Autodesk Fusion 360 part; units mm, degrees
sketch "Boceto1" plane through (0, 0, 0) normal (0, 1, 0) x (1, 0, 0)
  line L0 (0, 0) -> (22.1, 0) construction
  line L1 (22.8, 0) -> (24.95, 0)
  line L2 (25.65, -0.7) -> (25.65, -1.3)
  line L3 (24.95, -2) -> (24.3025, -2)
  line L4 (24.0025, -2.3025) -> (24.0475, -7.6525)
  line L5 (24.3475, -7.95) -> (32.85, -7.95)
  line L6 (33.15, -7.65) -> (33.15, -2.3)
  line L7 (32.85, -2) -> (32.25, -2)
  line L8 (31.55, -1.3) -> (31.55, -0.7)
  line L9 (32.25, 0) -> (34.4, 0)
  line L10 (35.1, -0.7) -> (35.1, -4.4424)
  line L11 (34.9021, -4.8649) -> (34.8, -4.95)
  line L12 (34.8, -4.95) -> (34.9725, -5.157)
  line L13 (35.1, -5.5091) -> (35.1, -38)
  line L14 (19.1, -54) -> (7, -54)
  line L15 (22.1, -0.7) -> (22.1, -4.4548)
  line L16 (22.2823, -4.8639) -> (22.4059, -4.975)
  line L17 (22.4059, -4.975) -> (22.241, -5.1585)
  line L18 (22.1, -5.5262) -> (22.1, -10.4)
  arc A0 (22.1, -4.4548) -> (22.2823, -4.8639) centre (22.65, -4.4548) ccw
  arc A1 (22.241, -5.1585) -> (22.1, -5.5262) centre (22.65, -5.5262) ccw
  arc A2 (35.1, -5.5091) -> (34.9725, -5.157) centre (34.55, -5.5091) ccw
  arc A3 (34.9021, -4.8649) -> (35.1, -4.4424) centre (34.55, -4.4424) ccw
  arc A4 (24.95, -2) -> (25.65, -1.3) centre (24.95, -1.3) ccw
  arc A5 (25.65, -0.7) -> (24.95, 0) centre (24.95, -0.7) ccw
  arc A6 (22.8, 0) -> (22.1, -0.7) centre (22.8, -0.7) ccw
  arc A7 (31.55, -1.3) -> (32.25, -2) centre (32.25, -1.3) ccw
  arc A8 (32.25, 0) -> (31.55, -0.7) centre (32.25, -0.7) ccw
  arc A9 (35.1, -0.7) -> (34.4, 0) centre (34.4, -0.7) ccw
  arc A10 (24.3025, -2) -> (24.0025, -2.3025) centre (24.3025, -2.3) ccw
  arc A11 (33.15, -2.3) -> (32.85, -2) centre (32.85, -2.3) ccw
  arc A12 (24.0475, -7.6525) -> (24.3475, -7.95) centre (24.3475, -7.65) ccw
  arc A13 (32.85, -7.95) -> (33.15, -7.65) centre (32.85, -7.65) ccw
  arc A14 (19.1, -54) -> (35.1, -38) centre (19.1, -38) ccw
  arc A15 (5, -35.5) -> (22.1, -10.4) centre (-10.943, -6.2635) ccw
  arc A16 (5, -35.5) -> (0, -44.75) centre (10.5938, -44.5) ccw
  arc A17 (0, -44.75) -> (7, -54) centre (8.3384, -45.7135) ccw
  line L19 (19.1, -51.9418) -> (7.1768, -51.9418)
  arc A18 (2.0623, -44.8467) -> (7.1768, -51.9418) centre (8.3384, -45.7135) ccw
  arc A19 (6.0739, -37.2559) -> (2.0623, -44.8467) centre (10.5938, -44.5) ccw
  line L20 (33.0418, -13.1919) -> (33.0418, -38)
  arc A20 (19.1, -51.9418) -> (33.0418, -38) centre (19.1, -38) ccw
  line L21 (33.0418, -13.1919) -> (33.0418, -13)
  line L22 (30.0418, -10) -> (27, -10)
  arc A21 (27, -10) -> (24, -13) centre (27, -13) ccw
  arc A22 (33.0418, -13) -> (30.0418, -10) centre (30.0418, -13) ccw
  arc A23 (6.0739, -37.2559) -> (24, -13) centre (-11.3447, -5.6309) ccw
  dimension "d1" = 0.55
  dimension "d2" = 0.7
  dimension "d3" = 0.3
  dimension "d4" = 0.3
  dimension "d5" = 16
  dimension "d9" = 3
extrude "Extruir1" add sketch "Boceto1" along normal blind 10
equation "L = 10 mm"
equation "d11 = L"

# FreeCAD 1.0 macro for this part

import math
import FreeCAD as App
import Part
import Sketcher
Q = App.Units.Quantity

doc = App.newDocument("Part")
params = doc.addObject("Spreadsheet::Sheet", "Params")
for row, (alias, value) in enumerate([
    ("sketch1_radius", "16 mm"),
    ("sketch1_radius2", "3 mm"),
    ("sketch1_radius3", "0.7 mm"),
    ("sketch1_radius4", "0.3 mm"),
    ("sketch1_radius5", "0.55 mm"),
    ("pad1_length", "10 mm"),
], start=1):
    params.set(f"A{row}", alias)
    params.set(f"B{row}", "=" + value)
    params.setAlias(f"B{row}", alias)

body = doc.addObject("PartDesign::Body", "Body")

sketch1 = doc.addObject("Sketcher::SketchObject", "Sketch")
body.addObject(sketch1)
sketch1.AttachmentSupport = (doc.XZ_Plane, [""])
sketch1.MapMode = "FlatFace"
sketch1.addGeometry(Part.LineSegment(App.Vector(24.95, 0, 0), App.Vector(22.8, 0, 0)), False)
sketch1.addGeometry(Part.ArcOfCircle(Part.Circle(App.Vector(22.8, 0.7, 0), App.Vector(0, 0, 1), 0.7), math.radians(180), math.radians(270)), False)
sketch1.addGeometry(Part.LineSegment(App.Vector(22.1, 0.7, 0), App.Vector(22.1, 4.4548, 0)), False)
sketch1.addGeometry(Part.ArcOfCircle(Part.Circle(App.Vector(22.65, 4.4548, 0), App.Vector(0, 0, 1), 0.55), math.radians(131.949275), math.radians(180)), False)
sketch1.addGeometry(Part.LineSegment(App.Vector(22.2823, 4.8639, 0), App.Vector(22.4059, 4.975, 0)), False)
sketch1.addGeometry(Part.LineSegment(App.Vector(22.4059, 4.975, 0), App.Vector(22.241, 5.1585, 0)), False)
sketch1.addGeometry(Part.ArcOfCircle(Part.Circle(App.Vector(22.65, 5.5262, 0), App.Vector(0, 0, 1), 0.549986), math.radians(180), math.radians(221.956239)), False)
sketch1.addGeometry(Part.LineSegment(App.Vector(22.1, 5.5262, 0), App.Vector(22.1, 10.4, 0)), False)
sketch1.addGeometry(Part.ArcOfCircle(Part.Circle(App.Vector(-10.943, 6.2635, 0), App.Vector(0, 0, 1), 33.300934), math.radians(7.135473), math.radians(61.395857)), False)
sketch1.addGeometry(Part.ArcOfCircle(Part.Circle(App.Vector(10.5938, 44.5, 0), App.Vector(0, 0, 1), 10.596726), math.radians(178.648145), math.radians(238.137671)), False)
sketch1.addGeometry(Part.ArcOfCircle(Part.Circle(App.Vector(8.3384, 45.7135, 0), App.Vector(0, 0, 1), 8.393882), math.radians(99.174933), math.radians(186.591281)), False)
sketch1.addGeometry(Part.LineSegment(App.Vector(7, 54, 0), App.Vector(19.1, 54, 0)), False)
sketch1.addGeometry(Part.ArcOfCircle(Part.Circle(App.Vector(19.1, 38, 0), App.Vector(0, 0, 1), 16), math.radians(0), math.radians(90)), False)
sketch1.addGeometry(Part.LineSegment(App.Vector(35.1, 38, 0), App.Vector(35.1, 5.5091, 0)), False)
sketch1.addGeometry(Part.ArcOfCircle(Part.Circle(App.Vector(34.55, 5.5091, 0), App.Vector(0, 0, 1), 0.55), math.radians(-39.806905), math.radians(0)), False)
sketch1.addGeometry(Part.LineSegment(App.Vector(34.9725, 5.157, 0), App.Vector(34.8, 4.95, 0)), False)
sketch1.addGeometry(Part.LineSegment(App.Vector(34.8, 4.95, 0), App.Vector(34.9021, 4.8649, 0)), False)
sketch1.addGeometry(Part.ArcOfCircle(Part.Circle(App.Vector(34.55, 4.4424, 0), App.Vector(0, 0, 1), 0.549982), math.radians(0), math.radians(50.193095)), False)
sketch1.addGeometry(Part.LineSegment(App.Vector(35.1, 4.4424, 0), App.Vector(35.1, 0.7, 0)), False)
sketch1.addGeometry(Part.ArcOfCircle(Part.Circle(App.Vector(34.4, 0.7, 0), App.Vector(0, 0, 1), 0.7), math.radians(-90), math.radians(0)), False)
sketch1.addGeometry(Part.LineSegment(App.Vector(34.4, 0, 0), App.Vector(32.25, 0, 0)), False)
sketch1.addGeometry(Part.ArcOfCircle(Part.Circle(App.Vector(32.25, 0.7, 0), App.Vector(0, 0, 1), 0.7), math.radians(180), math.radians(270)), False)
sketch1.addGeometry(Part.LineSegment(App.Vector(31.55, 0.7, 0), App.Vector(31.55, 1.3, 0)), False)
sketch1.addGeometry(Part.ArcOfCircle(Part.Circle(App.Vector(32.25, 1.3, 0), App.Vector(0, 0, 1), 0.7), math.radians(90), math.radians(180)), False)
sketch1.addGeometry(Part.LineSegment(App.Vector(32.25, 2, 0), App.Vector(32.85, 2, 0)), False)
sketch1.addGeometry(Part.ArcOfCircle(Part.Circle(App.Vector(32.85, 2.3, 0), App.Vector(0, 0, 1), 0.3), math.radians(-90), math.radians(0)), False)
sketch1.addGeometry(Part.LineSegment(App.Vector(33.15, 2.3, 0), App.Vector(33.15, 7.65, 0)), False)
sketch1.addGeometry(Part.ArcOfCircle(Part.Circle(App.Vector(32.85, 7.65, 0), App.Vector(0, 0, 1), 0.3), math.radians(0), math.radians(90)), False)
sketch1.addGeometry(Part.LineSegment(App.Vector(32.85, 7.95, 0), App.Vector(24.3475, 7.95, 0)), False)
sketch1.addGeometry(Part.ArcOfCircle(Part.Circle(App.Vector(24.3475, 7.65, 0), App.Vector(0, 0, 1), 0.30001), math.radians(90), math.radians(179.522546)), False)
sketch1.addGeometry(Part.LineSegment(App.Vector(24.0475, 7.6525, 0), App.Vector(24.0025, 2.3025, 0)), False)
sketch1.addGeometry(Part.ArcOfCircle(Part.Circle(App.Vector(24.3025, 2.3, 0), App.Vector(0, 0, 1), 0.3), math.radians(179.522546), math.radians(270)), False)
sketch1.addGeometry(Part.LineSegment(App.Vector(24.3025, 2, 0), App.Vector(24.95, 2, 0)), False)
sketch1.addGeometry(Part.ArcOfCircle(Part.Circle(App.Vector(24.95, 1.3, 0), App.Vector(0, 0, 1), 0.7), math.radians(0), math.radians(90)), False)
sketch1.addGeometry(Part.LineSegment(App.Vector(25.65, 1.3, 0), App.Vector(25.65, 0.7, 0)), False)
sketch1.addGeometry(Part.ArcOfCircle(Part.Circle(App.Vector(24.95, 0.7, 0), App.Vector(0, 0, 1), 0.7), math.radians(-90), math.radians(0)), False)
sketch1.addGeometry(Part.ArcOfCircle(Part.Circle(App.Vector(19.1, 38, 0), App.Vector(0, 0, 1), 13.9418), math.radians(0), math.radians(90)), False)
sketch1.addGeometry(Part.LineSegment(App.Vector(19.1, 51.9418, 0), App.Vector(7.1768, 51.9418, 0)), False)
sketch1.addGeometry(Part.ArcOfCircle(Part.Circle(App.Vector(8.3384, 45.7135, 0), App.Vector(0, 0, 1), 6.335675), math.radians(100.564491), math.radians(187.863446)), False)
sketch1.addGeometry(Part.ArcOfCircle(Part.Circle(App.Vector(10.5938, 44.5, 0), App.Vector(0, 0, 1), 8.538529), math.radians(177.672915), math.radians(238.038219)), False)
sketch1.addGeometry(Part.ArcOfCircle(Part.Circle(App.Vector(-11.3447, 5.6309, 0), App.Vector(0, 0, 1), 36.104685), math.radians(11.777021), math.radians(61.154652)), False)
sketch1.addGeometry(Part.ArcOfCircle(Part.Circle(App.Vector(27, 13, 0), App.Vector(0, 0, 1), 3), math.radians(180), math.radians(270)), False)
sketch1.addGeometry(Part.LineSegment(App.Vector(27, 10, 0), App.Vector(30.0418, 10, 0)), False)
sketch1.addGeometry(Part.ArcOfCircle(Part.Circle(App.Vector(30.0418, 13, 0), App.Vector(0, 0, 1), 3), math.radians(-90), math.radians(0)), False)
sketch1.addGeometry(Part.LineSegment(App.Vector(33.0418, 13, 0), App.Vector(33.0418, 38, 0)), False)
sketch1.addConstraint(Sketcher.Constraint("Tangent", 0, 2, 1, 2))
sketch1.addConstraint(Sketcher.Constraint("Tangent", 1, 1, 2, 1))
sketch1.addConstraint(Sketcher.Constraint("Tangent", 2, 2, 3, 2))
sketch1.addConstraint(Sketcher.Constraint("Tangent", 3, 1, 4, 1))
sketch1.addConstraint(Sketcher.Constraint("Coincident", 4, 2, 5, 1))
sketch1.addConstraint(Sketcher.Constraint("Tangent", 5, 2, 6, 2))
sketch1.addConstraint(Sketcher.Constraint("Tangent", 6, 1, 7, 1))
sketch1.addConstraint(Sketcher.Constraint("Coincident", 7, 2, 8, 1))
sketch1.addConstraint(Sketcher.Constraint("Coincident", 8, 2, 9, 2))
sketch1.addConstraint(Sketcher.Constraint("Coincident", 9, 1, 10, 2))
sketch1.addConstraint(Sketcher.Constraint("Coincident", 10, 1, 11, 1))
sketch1.addConstraint(Sketcher.Constraint("Tangent", 11, 2, 12, 2))
sketch1.addConstraint(Sketcher.Constraint("Tangent", 12, 1, 13, 1))
sketch1.addConstraint(Sketcher.Constraint("Tangent", 13, 2, 14, 2))
sketch1.addConstraint(Sketcher.Constraint("Tangent", 14, 1, 15, 1))
sketch1.addConstraint(Sketcher.Constraint("Coincident", 15, 2, 16, 1))
sketch1.addConstraint(Sketcher.Constraint("Tangent", 16, 2, 17, 2))
sketch1.addConstraint(Sketcher.Constraint("Tangent", 17, 1, 18, 1))
sketch1.addConstraint(Sketcher.Constraint("Tangent", 18, 2, 19, 2))
sketch1.addConstraint(Sketcher.Constraint("Tangent", 19, 1, 20, 1))
sketch1.addConstraint(Sketcher.Constraint("Tangent", 20, 2, 21, 2))
sketch1.addConstraint(Sketcher.Constraint("Tangent", 21, 1, 22, 1))
sketch1.addConstraint(Sketcher.Constraint("Tangent", 22, 2, 23, 2))
sketch1.addConstraint(Sketcher.Constraint("Tangent", 23, 1, 24, 1))
sketch1.addConstraint(Sketcher.Constraint("Tangent", 24, 2, 25, 1))
sketch1.addConstraint(Sketcher.Constraint("Tangent", 25, 2, 26, 1))
sketch1.addConstraint(Sketcher.Constraint("Tangent", 26, 2, 27, 1))
sketch1.addConstraint(Sketcher.Constraint("Tangent", 27, 2, 28, 1))
sketch1.addConstraint(Sketcher.Constraint("Tangent", 28, 2, 29, 1))
sketch1.addConstraint(Sketcher.Constraint("Tangent", 29, 2, 30, 1))
sketch1.addConstraint(Sketcher.Constraint("Tangent", 30, 2, 31, 1))
sketch1.addConstraint(Sketcher.Constraint("Tangent", 31, 2, 32, 1))
sketch1.addConstraint(Sketcher.Constraint("Tangent", 32, 2, 33, 2))
sketch1.addConstraint(Sketcher.Constraint("Tangent", 33, 1, 34, 1))
sketch1.addConstraint(Sketcher.Constraint("Tangent", 34, 2, 35, 2))
sketch1.addConstraint(Sketcher.Constraint("Tangent", 35, 1, 0, 1))
sketch1.addConstraint(Sketcher.Constraint("Tangent", 36, 2, 37, 1))
sketch1.addConstraint(Sketcher.Constraint("Coincident", 37, 2, 38, 1))
sketch1.addConstraint(Sketcher.Constraint("Coincident", 38, 2, 39, 1))
sketch1.addConstraint(Sketcher.Constraint("Coincident", 39, 2, 40, 2))
sketch1.addConstraint(Sketcher.Constraint("Coincident", 40, 1, 41, 1))
sketch1.addConstraint(Sketcher.Constraint("Tangent", 41, 2, 42, 1))
sketch1.addConstraint(Sketcher.Constraint("Tangent", 42, 2, 43, 1))
sketch1.addConstraint(Sketcher.Constraint("Tangent", 43, 2, 44, 1))
sketch1.addConstraint(Sketcher.Constraint("Tangent", 44, 2, 36, 1))
sketch1.addConstraint(Sketcher.Constraint("Horizontal", 0))
sketch1.addConstraint(Sketcher.Constraint("Vertical", 2))
sketch1.addConstraint(Sketcher.Constraint("Vertical", 7))
sketch1.addConstraint(Sketcher.Constraint("Horizontal", 11))
sketch1.addConstraint(Sketcher.Constraint("Vertical", 13))
sketch1.addConstraint(Sketcher.Constraint("Vertical", 18))
sketch1.addConstraint(Sketcher.Constraint("Horizontal", 20))
sketch1.addConstraint(Sketcher.Constraint("Vertical", 22))
sketch1.addConstraint(Sketcher.Constraint("Horizontal", 24))
sketch1.addConstraint(Sketcher.Constraint("Vertical", 26))
sketch1.addConstraint(Sketcher.Constraint("Horizontal", 28))
sketch1.addConstraint(Sketcher.Constraint("Horizontal", 32))
sketch1.addConstraint(Sketcher.Constraint("Vertical", 34))
sketch1.addConstraint(Sketcher.Constraint("Horizontal", 37))
sketch1.addConstraint(Sketcher.Constraint("Horizontal", 42))
sketch1.addConstraint(Sketcher.Constraint("Vertical", 44))
sketch1.addConstraint(Sketcher.Constraint("Coincident", 36, 3, 12, 3))
sketch1.addConstraint(Sketcher.Constraint("Coincident", 38, 3, 10, 3))
sketch1.addConstraint(Sketcher.Constraint("Coincident", 39, 3, 9, 3))
sketch1.addConstraint(Sketcher.Constraint("Equal", 3, 6))
sketch1.addConstraint(Sketcher.Constraint("Equal", 6, 14))
sketch1.addConstraint(Sketcher.Constraint("Equal", 14, 17))
sketch1.addConstraint(Sketcher.Constraint("Equal", 1, 19))
sketch1.addConstraint(Sketcher.Constraint("Equal", 19, 21))
sketch1.addConstraint(Sketcher.Constraint("Equal", 21, 23))
sketch1.addConstraint(Sketcher.Constraint("Equal", 25, 27))
sketch1.addConstraint(Sketcher.Constraint("Equal", 27, 29))
sketch1.addConstraint(Sketcher.Constraint("Equal", 29, 31))
sketch1.addConstraint(Sketcher.Constraint("Equal", 23, 33))
sketch1.addConstraint(Sketcher.Constraint("Equal", 33, 35))
sketch1.addConstraint(Sketcher.Constraint("Equal", 41, 43))
sketch1.addConstraint(Sketcher.Constraint("PointOnObject", 0, 2, -1))
sketch1.addConstraint(Sketcher.Constraint("PointOnObject", 9, 1, -2))
sketch1.addConstraint(Sketcher.Constraint("PointOnObject", 19, 1, -1))
sketch1.addConstraint(Sketcher.Constraint("Perpendicular", 4, 5))
sketch1.addConstraint(Sketcher.Constraint("Perpendicular", 15, 16))
sketch1.addConstraint(Sketcher.Constraint("Horizontal", 25, 3, 31, 3))
sketch1.addConstraint(Sketcher.Constraint("Horizontal", 43, 3, 40, 1))
sketch1.addConstraint(Sketcher.Constraint("Vertical", 3, 3, 6, 3))
sketch1.addConstraint(Sketcher.Constraint("Vertical", 14, 3, 17, 3))
sketch1.addConstraint(Sketcher.Constraint("Equal", 0, 20))
sketch1.addConstraint(Sketcher.Constraint("Equal", 24, 22))
sketch1.addConstraint(Sketcher.Constraint("Radius", 12, 16.0))
sketch1.addConstraint(Sketcher.Constraint("Radius", 41, 3.0))
sketch1.addConstraint(Sketcher.Constraint("Radius", 1, 0.7))
sketch1.addConstraint(Sketcher.Constraint("Radius", 25, 0.3))
sketch1.addConstraint(Sketcher.Constraint("Radius", 3, 0.55))
sketch1.addConstraint(Sketcher.Constraint("DistanceY", 44, 1, 44, 2, 25.0))
sketch1.addConstraint(Sketcher.Constraint("DistanceX", 11, 1, 11, 2, 12.1))
sketch1.addConstraint(Sketcher.Constraint("DistanceX", 24, 1, 24, 2, 0.6))
sketch1.addConstraint(Sketcher.Constraint("DistanceY", -1, 1, 12, 3, 38.0))
sketch1.addConstraint(Sketcher.Constraint("DistanceX", -1, 1, 41, 3, 27.0))
sketch1.addConstraint(Sketcher.Constraint("DistanceX", -1, 1, 8, 2, 5.0))
sketch1.addConstraint(Sketcher.Constraint("DistanceX", -1, 1, 10, 1, 7.0))
sketch1.addConstraint(Sketcher.Constraint("Radius", 8, 33.301))
sketch1.addConstraint(Sketcher.Constraint("Radius", 10, 8.394))
sketch1.addConstraint(Sketcher.Constraint("DistanceX", 0, 2, 0, 1, 2.15))
sketch1.addConstraint(Sketcher.Constraint("DistanceY", 26, 1, 26, 2, 5.35))
sketch1.addConstraint(Sketcher.Constraint("DistanceX", -1, 1, 1, 3, 22.8))
sketch1.addConstraint(Sketcher.Constraint("DistanceY", -1, 1, 9, 3, 44.5))
sketch1.addConstraint(Sketcher.Constraint("DistanceY", -1, 1, 7, 2, 10.4))
sketch1.addConstraint(Sketcher.Constraint("DistanceY", -1, 1, 8, 2, 35.5))
sketch1.addConstraint(Sketcher.Constraint("DistanceX", -1, 1, 15, 2, 34.8))
sketch1.addConstraint(Sketcher.Constraint("Angle", 16, Q("-39.811 deg")))
sketch1.addConstraint(Sketcher.Constraint("Radius", 9, 10.5967))
sketch1.addConstraint(Sketcher.Constraint("Radius", 36, 13.9418))
sketch1.addConstraint(Sketcher.Constraint("Radius", 38, 6.3357))
sketch1.addConstraint(Sketcher.Constraint("Radius", 39, 8.5385))
sketch1.addConstraint(Sketcher.Constraint("Radius", 40, 36.1047))
sketch1.addConstraint(Sketcher.Constraint("DistanceY", 13, 2, 13, 1, 32.491))
sketch1.addConstraint(Sketcher.Constraint("DistanceX", 28, 2, 28, 1, 8.5025))
sketch1.addConstraint(Sketcher.Constraint("DistanceX", 32, 1, 32, 2, 0.6475))
sketch1.addConstraint(Sketcher.Constraint("DistanceY", 2, 1, 2, 2, 3.7548))
sketch1.addConstraint(Sketcher.Constraint("DistanceY", 7, 1, 7, 2, 4.8738))
sketch1.addConstraint(Sketcher.Constraint("DistanceY", -1, 1, 40, 3, 5.631))
sketch1.addConstraint(Sketcher.Constraint("DistanceX", -1, 1, 4, 2, 22.406))
sketch1.setExpression("Constraints[87]", "Params.sketch1_radius")
sketch1.setExpression("Constraints[88]", "Params.sketch1_radius2")
sketch1.setExpression("Constraints[89]", "Params.sketch1_radius3")
sketch1.setExpression("Constraints[90]", "Params.sketch1_radius4")
sketch1.setExpression("Constraints[91]", "Params.sketch1_radius5")
pad1 = doc.addObject("PartDesign::Pad", "Pad")
body.addObject(pad1)
pad1.Profile = sketch1
pad1.setExpression("Length", "Params.pad1_length")
pad1.Reversed = True

doc.recompute()
